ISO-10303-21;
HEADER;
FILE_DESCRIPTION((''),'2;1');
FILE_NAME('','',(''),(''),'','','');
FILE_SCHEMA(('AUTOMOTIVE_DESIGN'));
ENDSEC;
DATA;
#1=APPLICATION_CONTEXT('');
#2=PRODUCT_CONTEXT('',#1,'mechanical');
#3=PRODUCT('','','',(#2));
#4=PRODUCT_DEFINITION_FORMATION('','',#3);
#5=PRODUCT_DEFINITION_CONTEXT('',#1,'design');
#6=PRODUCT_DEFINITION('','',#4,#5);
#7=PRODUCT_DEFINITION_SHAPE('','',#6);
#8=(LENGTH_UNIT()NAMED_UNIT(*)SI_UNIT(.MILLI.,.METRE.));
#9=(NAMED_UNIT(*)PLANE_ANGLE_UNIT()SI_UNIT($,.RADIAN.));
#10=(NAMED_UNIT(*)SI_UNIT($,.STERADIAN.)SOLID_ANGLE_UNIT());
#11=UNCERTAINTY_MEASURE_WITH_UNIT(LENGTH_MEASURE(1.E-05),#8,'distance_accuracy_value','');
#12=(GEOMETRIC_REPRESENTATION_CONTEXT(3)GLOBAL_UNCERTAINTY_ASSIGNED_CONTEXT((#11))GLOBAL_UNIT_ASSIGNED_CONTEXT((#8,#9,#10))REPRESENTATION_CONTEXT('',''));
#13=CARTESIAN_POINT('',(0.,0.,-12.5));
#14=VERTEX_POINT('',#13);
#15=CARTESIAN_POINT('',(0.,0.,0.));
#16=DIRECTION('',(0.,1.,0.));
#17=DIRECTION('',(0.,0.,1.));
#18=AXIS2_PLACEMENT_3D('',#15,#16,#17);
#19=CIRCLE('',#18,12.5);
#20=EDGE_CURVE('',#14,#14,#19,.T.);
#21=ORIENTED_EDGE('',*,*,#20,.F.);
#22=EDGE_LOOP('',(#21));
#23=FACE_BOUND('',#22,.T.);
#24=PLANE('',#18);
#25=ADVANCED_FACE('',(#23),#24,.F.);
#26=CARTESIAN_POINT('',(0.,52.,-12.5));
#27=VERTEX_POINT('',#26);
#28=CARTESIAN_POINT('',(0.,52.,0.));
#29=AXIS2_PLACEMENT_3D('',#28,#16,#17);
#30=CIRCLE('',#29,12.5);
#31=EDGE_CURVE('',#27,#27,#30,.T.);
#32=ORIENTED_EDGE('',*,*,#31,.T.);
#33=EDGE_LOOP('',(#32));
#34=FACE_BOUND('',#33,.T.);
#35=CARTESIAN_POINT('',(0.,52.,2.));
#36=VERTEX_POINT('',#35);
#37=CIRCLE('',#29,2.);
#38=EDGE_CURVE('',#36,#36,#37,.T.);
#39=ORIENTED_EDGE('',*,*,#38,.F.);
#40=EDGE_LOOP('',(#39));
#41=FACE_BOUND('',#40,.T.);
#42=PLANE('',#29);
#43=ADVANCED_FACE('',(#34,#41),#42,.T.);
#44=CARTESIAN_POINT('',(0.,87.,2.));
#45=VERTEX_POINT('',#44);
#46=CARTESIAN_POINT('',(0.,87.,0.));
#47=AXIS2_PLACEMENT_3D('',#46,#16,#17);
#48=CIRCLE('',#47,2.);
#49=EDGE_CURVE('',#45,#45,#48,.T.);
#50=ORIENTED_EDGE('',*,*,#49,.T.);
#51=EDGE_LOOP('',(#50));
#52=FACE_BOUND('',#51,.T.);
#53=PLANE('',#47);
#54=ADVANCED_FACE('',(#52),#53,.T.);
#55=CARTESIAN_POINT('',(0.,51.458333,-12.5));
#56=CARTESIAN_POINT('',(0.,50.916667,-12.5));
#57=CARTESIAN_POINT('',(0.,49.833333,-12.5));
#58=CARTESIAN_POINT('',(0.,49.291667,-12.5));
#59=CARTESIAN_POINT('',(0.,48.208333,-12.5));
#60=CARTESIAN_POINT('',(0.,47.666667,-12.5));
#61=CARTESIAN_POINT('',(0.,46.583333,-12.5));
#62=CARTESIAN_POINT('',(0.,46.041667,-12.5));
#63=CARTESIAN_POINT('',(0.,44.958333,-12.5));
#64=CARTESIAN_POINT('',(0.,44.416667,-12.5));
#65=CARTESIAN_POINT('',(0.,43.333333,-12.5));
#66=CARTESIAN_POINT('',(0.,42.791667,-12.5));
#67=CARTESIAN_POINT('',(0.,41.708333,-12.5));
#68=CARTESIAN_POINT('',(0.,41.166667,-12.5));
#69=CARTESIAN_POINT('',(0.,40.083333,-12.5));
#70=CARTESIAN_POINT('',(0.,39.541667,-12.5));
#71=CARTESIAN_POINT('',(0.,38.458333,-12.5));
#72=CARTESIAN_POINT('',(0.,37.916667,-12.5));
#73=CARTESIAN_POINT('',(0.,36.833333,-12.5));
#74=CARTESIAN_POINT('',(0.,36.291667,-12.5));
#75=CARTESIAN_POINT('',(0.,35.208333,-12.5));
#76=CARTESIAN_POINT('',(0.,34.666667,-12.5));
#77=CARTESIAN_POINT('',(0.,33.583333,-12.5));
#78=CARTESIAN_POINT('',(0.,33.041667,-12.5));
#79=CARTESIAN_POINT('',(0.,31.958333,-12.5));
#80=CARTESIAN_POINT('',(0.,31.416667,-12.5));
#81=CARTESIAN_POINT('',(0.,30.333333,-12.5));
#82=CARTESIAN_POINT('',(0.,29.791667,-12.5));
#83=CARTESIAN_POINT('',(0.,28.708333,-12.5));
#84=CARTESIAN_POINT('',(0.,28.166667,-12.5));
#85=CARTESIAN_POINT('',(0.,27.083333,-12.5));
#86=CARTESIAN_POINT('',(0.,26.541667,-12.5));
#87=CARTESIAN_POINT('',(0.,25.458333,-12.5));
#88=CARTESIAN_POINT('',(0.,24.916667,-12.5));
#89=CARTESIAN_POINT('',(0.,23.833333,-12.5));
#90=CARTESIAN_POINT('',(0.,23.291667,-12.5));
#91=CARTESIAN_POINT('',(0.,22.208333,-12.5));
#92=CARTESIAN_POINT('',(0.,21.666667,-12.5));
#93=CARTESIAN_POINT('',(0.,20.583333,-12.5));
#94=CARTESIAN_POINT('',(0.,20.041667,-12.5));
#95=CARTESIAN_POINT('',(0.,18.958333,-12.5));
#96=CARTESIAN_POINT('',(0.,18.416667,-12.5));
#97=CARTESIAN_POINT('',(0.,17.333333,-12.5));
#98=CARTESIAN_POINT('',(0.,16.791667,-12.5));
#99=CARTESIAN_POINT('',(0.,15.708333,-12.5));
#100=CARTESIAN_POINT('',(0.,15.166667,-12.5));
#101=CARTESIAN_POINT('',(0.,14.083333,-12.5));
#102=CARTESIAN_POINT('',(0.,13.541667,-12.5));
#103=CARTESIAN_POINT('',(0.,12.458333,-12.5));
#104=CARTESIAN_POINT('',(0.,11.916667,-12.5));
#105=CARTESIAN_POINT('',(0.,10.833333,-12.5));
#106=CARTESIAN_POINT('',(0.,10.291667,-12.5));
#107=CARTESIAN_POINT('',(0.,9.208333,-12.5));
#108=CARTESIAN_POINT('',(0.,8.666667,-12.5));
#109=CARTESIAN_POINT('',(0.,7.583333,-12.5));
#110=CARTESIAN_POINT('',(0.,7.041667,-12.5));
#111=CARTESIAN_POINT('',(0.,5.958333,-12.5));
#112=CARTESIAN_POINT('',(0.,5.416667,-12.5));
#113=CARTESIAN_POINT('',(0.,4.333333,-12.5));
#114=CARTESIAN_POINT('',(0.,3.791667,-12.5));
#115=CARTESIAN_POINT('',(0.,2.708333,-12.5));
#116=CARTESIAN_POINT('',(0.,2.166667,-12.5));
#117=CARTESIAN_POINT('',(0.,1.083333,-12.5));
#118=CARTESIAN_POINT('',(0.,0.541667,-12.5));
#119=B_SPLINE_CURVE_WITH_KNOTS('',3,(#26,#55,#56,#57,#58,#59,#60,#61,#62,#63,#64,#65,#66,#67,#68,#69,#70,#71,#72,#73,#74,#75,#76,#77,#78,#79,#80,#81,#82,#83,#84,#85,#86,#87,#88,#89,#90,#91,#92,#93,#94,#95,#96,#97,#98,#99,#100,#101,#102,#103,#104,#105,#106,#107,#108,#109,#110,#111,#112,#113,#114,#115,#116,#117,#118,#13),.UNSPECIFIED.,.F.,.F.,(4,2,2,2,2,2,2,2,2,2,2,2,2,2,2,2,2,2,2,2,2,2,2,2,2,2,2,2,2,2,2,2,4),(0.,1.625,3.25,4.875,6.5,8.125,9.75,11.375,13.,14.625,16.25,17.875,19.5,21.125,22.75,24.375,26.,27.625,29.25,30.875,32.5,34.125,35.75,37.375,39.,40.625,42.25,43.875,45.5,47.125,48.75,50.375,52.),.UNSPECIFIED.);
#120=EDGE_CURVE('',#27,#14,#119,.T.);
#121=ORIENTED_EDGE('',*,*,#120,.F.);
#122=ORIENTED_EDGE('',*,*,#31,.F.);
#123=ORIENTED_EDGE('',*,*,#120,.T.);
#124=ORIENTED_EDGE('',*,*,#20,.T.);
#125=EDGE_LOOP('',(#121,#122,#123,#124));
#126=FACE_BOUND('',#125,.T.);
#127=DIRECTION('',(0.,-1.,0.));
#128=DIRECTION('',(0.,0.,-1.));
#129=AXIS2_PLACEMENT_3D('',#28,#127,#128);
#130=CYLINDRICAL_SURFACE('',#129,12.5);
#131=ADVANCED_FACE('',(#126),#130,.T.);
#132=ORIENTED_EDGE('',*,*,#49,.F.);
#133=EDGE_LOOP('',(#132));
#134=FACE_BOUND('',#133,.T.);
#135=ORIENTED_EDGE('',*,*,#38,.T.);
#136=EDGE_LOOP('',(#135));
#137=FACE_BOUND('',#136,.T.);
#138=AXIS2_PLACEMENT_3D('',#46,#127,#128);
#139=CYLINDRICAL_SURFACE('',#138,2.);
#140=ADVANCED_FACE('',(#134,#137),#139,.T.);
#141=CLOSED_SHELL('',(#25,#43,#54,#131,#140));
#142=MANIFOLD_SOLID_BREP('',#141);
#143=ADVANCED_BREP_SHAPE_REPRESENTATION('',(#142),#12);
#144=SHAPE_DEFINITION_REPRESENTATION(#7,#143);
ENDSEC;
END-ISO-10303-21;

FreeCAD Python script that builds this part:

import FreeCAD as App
import Part
import Sketcher

V = App.Vector

doc = App.newDocument("Part")
body = doc.addObject("PartDesign::Body", "Body")

# Sketch on XZ plane
sketch1 = doc.addObject("Sketcher::SketchObject", "Sketch")
body.addObject(sketch1)
sketch1.AttachmentSupport = (doc.XZ_Plane, [""])
sketch1.MapMode = "FlatFace"
sketch1.addGeometry(Part.Circle(V(0, 0, 0), V(0, 0, 1), 12), False)
sketch1.addConstraint([
    Sketcher.Constraint("Coincident", 0, 3, -1, 1),
    Sketcher.Constraint("Diameter", 0, 25.0),
])
pad1 = doc.addObject("PartDesign::Pad", "Pad")
body.addObject(pad1)
pad1.Profile = sketch1
pad1.Length = 52
pad1.Reversed = True

# Sketch on XZ plane
sketch2 = doc.addObject("Sketcher::SketchObject", "Sketch001")
body.addObject(sketch2)
sketch2.AttachmentSupport = (doc.XZ_Plane, [""])
sketch2.MapMode = "FlatFace"
sketch2.AttachmentOffset = App.Placement(V(0, 0, -52), App.Rotation())
sketch2.addGeometry(Part.Circle(V(0, 0, 0), V(0, 0, 1), 2), False)
sketch2.addConstraint([
    Sketcher.Constraint("Coincident", 0, 3, -1, 1),
    Sketcher.Constraint("Diameter", 0, 4.0),
])
pad2 = doc.addObject("PartDesign::Pad", "Pad001")
body.addObject(pad2)
pad2.Profile = sketch2
pad2.Length = 35
pad2.Reversed = True

doc.recompute()
